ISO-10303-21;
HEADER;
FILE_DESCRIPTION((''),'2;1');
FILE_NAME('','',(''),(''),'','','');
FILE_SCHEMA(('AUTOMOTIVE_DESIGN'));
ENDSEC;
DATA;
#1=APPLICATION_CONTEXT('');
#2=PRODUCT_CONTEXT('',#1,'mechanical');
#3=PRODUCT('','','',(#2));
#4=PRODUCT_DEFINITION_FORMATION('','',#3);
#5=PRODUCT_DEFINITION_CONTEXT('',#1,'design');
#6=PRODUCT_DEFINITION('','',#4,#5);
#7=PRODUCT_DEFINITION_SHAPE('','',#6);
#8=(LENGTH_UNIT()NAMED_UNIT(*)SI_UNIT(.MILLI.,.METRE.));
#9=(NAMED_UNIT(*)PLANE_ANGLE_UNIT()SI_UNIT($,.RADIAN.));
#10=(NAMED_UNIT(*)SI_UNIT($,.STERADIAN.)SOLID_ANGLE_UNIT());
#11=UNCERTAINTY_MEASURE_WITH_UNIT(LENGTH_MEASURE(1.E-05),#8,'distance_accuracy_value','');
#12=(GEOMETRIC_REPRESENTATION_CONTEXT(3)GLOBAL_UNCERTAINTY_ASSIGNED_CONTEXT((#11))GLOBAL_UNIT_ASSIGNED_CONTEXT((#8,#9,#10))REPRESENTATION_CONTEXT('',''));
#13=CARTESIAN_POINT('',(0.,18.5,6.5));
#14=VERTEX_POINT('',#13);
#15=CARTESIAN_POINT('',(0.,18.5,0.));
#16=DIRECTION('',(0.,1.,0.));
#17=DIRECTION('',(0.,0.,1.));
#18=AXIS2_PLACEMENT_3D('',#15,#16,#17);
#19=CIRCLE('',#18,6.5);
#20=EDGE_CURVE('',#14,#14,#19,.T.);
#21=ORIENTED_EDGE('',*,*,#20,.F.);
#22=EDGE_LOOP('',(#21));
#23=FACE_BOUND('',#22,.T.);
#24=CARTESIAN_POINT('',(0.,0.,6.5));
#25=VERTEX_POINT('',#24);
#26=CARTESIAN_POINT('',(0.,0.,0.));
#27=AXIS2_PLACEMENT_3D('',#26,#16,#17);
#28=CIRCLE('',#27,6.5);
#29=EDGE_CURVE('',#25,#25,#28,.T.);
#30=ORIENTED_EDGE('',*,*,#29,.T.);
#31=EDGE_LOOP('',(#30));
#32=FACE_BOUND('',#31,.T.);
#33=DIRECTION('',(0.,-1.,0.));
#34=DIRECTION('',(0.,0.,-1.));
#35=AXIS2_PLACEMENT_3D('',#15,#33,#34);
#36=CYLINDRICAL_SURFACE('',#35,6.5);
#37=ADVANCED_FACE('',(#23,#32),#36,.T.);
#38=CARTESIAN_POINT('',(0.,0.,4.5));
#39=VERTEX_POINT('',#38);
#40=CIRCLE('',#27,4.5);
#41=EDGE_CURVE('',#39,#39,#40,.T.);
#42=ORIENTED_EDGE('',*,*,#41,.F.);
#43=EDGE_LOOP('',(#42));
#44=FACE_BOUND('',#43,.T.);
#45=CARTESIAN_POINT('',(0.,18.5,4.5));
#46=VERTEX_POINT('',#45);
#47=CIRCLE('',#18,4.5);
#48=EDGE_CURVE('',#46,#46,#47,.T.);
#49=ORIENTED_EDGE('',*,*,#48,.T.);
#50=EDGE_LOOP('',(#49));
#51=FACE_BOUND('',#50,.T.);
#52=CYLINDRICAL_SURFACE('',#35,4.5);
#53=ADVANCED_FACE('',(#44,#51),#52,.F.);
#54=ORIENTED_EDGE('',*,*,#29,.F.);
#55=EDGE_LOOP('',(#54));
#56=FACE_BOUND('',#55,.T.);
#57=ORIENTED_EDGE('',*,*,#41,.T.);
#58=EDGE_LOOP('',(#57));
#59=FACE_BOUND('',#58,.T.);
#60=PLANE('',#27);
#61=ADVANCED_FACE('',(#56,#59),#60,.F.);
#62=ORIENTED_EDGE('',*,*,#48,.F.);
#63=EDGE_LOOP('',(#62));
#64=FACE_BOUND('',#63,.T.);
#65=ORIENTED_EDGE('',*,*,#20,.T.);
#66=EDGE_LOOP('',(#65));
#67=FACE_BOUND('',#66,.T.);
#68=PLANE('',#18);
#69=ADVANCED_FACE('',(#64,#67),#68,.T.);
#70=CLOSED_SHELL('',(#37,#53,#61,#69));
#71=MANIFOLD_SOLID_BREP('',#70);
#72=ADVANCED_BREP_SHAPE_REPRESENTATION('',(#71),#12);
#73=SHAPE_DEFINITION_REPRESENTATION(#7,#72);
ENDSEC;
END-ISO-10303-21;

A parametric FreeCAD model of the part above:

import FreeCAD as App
import Part
import Sketcher
from FreeCAD import Vector
Q = App.Units.Quantity

doc = App.newDocument("Part")
params = doc.addObject("Spreadsheet::Sheet", "Params")
for row, (alias, value) in enumerate([
    ("sketch1_diameter", "13 mm"),
    ("sketch1_diameter2", "9 mm"),
    ("pad1_length", "18.5 mm"),
], start=1):
    params.set(f"A{row}", alias)
    params.set(f"B{row}", "=" + value)
    params.setAlias(f"B{row}", alias)

body = doc.addObject("PartDesign::Body", "Body")

# Sketch on XZ plane
sketch1 = doc.addObject("Sketcher::SketchObject", "Sketch")
body.addObject(sketch1)
sketch1.AttachmentSupport = (doc.XZ_Plane, [""])
sketch1.MapMode = "FlatFace"
sketch1.addGeometry(Part.Circle(Vector(0, 0, 0), Vector(0, 0, 1), 6.5), False)
sketch1.addGeometry(Part.Circle(Vector(0, 0, 0), Vector(0, 0, 1), 4.5), False)
sketch1.addConstraint(Sketcher.Constraint("Coincident", 0, 3, -1, 1))
sketch1.addConstraint(Sketcher.Constraint("Coincident", 1, 3, -1, 1))
sketch1.addConstraint(Sketcher.Constraint("Diameter", 0, Q("13 mm")))
sketch1.addConstraint(Sketcher.Constraint("Diameter", 1, Q("9 mm")))
sketch1.setExpression("Constraints[2]", "Params.sketch1_diameter")
sketch1.setExpression("Constraints[3]", "Params.sketch1_diameter2")
pad1 = doc.addObject("PartDesign::Pad", "Pad")
body.addObject(pad1)
pad1.Profile = sketch1
pad1.setExpression("Length", "Params.pad1_length")
pad1.Reversed = True

doc.recompute()
